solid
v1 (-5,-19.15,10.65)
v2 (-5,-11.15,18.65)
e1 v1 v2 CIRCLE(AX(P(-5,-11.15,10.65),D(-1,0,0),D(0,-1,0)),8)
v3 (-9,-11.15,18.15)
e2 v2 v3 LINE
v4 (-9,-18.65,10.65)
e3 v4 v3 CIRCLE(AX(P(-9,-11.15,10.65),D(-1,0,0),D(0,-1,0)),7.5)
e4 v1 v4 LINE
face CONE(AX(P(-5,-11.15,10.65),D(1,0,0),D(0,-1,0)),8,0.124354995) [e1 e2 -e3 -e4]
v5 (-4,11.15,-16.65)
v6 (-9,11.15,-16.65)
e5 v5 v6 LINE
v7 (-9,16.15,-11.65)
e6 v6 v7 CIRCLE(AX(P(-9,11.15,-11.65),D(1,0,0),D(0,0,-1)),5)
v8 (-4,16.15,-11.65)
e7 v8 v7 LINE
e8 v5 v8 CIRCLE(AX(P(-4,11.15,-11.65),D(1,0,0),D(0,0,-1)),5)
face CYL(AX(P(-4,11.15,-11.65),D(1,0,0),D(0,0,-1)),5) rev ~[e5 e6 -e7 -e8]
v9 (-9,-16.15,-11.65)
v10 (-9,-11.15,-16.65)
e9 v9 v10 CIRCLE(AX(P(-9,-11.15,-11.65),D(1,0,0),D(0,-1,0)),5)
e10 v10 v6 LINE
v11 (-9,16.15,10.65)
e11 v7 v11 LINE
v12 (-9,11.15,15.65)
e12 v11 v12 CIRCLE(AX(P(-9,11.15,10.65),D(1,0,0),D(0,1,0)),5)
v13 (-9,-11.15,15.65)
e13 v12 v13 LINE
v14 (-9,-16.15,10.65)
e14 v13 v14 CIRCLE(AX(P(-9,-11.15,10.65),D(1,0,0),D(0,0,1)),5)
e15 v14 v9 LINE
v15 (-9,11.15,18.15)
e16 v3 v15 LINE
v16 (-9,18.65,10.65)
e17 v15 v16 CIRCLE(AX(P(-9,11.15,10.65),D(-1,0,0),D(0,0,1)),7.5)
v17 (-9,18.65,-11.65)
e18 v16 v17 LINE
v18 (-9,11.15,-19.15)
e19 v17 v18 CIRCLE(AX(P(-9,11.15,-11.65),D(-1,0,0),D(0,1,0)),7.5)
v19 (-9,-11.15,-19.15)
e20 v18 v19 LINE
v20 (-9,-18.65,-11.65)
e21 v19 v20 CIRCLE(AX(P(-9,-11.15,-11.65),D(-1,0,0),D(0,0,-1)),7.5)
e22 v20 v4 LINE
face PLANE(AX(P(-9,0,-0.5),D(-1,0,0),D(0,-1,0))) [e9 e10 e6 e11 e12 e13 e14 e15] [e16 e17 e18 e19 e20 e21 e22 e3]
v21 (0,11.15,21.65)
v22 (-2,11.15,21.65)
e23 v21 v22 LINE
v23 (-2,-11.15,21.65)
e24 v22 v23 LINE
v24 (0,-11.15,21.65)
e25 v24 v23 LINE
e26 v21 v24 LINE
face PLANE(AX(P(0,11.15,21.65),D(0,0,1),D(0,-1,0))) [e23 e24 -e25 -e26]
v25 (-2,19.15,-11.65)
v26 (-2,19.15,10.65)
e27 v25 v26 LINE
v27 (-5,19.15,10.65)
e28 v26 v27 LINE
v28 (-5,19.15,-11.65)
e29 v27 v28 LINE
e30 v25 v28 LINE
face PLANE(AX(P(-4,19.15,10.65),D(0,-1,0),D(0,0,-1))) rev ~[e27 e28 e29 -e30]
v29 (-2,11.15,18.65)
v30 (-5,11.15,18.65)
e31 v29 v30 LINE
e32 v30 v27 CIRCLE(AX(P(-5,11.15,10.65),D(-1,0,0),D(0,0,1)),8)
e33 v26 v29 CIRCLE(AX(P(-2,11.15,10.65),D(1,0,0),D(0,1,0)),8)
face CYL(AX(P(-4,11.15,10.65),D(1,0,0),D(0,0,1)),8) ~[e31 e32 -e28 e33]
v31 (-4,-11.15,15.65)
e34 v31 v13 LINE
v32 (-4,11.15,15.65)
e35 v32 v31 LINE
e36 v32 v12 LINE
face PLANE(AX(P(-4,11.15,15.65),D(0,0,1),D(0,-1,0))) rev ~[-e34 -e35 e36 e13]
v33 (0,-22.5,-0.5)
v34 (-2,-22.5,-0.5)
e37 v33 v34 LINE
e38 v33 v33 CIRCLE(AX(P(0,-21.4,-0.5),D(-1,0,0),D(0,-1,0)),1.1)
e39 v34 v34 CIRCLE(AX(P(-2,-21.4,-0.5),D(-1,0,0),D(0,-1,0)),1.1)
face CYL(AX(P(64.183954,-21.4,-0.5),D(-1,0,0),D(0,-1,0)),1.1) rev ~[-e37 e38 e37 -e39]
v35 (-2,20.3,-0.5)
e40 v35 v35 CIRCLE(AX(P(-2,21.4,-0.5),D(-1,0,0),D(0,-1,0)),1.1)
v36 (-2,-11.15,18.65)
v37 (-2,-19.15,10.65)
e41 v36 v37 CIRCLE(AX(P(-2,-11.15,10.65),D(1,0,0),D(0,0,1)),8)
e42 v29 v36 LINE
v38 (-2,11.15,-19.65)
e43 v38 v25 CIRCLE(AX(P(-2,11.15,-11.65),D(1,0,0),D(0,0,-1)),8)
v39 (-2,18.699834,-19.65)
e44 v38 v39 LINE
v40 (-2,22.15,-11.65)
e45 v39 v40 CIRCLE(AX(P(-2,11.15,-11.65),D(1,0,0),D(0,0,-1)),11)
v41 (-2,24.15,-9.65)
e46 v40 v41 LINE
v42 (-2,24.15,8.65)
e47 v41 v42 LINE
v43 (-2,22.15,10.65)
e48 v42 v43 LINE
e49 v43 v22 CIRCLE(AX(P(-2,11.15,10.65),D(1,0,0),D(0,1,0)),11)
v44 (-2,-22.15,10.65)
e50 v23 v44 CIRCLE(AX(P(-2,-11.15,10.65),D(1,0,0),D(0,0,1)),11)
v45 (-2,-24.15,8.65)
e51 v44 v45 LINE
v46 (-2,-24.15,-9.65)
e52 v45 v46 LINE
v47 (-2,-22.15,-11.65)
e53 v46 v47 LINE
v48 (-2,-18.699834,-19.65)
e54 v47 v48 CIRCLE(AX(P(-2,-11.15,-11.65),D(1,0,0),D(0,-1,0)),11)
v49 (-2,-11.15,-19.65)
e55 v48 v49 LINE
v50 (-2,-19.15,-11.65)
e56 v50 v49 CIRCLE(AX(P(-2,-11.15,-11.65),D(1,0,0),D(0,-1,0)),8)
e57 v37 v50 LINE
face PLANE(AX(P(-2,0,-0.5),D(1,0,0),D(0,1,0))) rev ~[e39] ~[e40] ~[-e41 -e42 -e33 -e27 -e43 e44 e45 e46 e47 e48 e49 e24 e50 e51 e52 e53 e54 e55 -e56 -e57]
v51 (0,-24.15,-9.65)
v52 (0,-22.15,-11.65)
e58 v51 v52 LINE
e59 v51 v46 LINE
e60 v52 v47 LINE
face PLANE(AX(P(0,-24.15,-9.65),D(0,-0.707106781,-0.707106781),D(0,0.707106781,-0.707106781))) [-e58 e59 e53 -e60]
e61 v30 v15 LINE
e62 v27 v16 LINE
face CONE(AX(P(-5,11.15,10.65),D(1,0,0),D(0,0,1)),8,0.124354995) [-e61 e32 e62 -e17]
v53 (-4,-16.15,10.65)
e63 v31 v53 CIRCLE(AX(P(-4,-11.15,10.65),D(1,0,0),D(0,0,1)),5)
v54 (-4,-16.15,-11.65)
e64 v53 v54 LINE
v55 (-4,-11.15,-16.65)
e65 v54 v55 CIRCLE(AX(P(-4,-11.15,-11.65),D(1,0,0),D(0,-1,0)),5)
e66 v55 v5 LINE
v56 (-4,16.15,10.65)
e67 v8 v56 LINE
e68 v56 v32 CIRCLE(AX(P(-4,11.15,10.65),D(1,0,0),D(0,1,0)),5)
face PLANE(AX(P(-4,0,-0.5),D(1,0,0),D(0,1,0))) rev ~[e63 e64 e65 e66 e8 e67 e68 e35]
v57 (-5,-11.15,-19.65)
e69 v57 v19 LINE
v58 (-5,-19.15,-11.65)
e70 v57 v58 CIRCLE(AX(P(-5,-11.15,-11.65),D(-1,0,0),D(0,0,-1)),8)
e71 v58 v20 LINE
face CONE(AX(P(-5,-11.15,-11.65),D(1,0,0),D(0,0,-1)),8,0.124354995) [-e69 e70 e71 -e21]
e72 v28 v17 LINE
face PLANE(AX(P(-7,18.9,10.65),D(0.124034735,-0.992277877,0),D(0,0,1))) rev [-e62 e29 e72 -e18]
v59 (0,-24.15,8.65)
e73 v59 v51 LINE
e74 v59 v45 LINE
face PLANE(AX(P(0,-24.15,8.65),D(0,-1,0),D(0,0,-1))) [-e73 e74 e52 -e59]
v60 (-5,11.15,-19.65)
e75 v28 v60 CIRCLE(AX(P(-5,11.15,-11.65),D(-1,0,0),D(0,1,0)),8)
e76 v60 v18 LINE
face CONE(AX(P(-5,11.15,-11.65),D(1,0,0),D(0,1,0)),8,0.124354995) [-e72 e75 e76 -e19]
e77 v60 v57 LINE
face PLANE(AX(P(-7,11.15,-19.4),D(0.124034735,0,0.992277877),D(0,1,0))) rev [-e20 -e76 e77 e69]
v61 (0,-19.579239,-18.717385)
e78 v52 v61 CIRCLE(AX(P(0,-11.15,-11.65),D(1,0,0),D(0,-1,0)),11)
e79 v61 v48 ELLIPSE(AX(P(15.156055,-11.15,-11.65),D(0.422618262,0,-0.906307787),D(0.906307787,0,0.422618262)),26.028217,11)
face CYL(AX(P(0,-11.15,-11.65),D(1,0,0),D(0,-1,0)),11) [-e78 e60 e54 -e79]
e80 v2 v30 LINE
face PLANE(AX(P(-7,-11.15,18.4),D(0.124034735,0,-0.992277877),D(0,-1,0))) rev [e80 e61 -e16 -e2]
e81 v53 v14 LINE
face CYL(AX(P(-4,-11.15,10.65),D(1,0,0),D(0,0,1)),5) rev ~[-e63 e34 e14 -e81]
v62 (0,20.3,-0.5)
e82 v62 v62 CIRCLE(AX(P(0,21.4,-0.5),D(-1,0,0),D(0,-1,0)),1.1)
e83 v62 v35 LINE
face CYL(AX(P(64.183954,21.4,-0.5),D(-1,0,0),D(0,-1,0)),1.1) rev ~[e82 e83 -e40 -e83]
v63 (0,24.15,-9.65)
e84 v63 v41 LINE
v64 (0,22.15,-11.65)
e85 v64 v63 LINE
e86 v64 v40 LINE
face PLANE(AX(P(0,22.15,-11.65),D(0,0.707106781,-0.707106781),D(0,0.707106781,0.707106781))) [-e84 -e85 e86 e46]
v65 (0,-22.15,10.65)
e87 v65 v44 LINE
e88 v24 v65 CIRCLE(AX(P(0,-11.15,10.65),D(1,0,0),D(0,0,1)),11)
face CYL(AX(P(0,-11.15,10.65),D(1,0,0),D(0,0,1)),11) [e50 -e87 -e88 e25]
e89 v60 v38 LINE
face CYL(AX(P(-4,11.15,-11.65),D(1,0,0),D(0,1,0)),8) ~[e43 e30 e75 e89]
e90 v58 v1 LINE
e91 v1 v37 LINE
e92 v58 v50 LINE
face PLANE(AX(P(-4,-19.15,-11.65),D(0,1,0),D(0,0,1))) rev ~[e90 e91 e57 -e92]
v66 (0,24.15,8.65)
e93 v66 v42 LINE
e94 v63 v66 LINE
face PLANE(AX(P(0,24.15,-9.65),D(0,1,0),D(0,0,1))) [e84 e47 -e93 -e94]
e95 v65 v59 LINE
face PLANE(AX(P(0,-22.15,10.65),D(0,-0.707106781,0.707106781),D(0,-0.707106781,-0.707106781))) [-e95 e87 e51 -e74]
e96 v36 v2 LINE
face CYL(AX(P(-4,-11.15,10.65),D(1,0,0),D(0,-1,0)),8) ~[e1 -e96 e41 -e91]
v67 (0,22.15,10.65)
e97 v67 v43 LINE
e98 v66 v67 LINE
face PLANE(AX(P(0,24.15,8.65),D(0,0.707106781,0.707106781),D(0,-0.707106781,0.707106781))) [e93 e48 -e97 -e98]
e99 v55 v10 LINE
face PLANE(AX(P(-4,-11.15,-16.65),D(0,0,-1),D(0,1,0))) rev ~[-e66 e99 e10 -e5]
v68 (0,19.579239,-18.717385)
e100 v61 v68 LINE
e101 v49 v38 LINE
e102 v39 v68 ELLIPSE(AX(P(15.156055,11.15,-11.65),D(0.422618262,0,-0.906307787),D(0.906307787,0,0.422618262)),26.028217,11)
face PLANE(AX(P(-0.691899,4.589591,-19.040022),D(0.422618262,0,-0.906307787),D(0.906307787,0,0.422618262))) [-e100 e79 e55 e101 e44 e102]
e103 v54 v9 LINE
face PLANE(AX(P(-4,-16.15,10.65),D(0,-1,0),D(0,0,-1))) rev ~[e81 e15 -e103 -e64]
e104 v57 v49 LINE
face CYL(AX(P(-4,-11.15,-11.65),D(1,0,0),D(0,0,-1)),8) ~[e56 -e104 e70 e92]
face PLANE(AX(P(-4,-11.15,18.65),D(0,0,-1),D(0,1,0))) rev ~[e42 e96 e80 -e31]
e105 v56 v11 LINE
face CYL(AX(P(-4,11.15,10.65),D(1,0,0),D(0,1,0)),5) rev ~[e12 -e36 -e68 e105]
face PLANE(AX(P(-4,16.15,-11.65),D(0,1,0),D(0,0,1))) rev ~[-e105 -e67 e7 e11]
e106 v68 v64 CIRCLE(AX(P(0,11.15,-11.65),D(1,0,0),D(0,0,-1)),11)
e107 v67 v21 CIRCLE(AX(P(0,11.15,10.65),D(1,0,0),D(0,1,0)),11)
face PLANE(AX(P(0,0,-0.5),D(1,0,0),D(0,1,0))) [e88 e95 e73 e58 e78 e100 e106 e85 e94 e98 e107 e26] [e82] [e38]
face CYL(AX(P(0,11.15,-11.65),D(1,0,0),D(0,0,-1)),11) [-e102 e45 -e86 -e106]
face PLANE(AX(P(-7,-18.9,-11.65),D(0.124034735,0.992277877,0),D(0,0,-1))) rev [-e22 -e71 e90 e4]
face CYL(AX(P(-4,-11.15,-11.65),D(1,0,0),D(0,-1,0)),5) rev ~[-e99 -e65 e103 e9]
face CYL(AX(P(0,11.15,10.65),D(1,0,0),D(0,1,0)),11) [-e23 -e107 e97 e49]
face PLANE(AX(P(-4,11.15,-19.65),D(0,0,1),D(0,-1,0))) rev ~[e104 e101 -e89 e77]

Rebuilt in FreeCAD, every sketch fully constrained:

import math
import FreeCAD as App
import Part
import Sketcher
from FreeCAD import Vector
Q = App.Units.Quantity


def edges_at(feature, points):
    """Names of the edges that pass closest to the given points."""
    edges = feature.Shape.Edges
    near = lambda p: min(range(len(edges)), key=lambda i: edges[i].distToShape(Part.Vertex(*p))[0])
    return sorted({f"Edge{near(p) + 1}" for p in points})


def add_polygon(sketch, points):
    """Adds a closed chain of lines whose ends are joined by coincident constraints."""
    first, n = sketch.GeometryCount, len(points)
    for a, b in zip(points, points[1:] + points[:1]):
        sketch.addGeometry(Part.LineSegment(App.Vector(*a, 0), App.Vector(*b, 0)), False)
    for i in range(n):
        sketch.addConstraint(Sketcher.Constraint("Coincident", first + i, 2, first + (i + 1) % n, 1))

doc = App.newDocument("Part")
params = doc.addObject("Spreadsheet::Sheet", "Params")
for row, (alias, value) in enumerate([
    ("sketch1_radius", "11 mm"),
    ("sketch1_width", "22.3 mm"),
    ("sketch1_height", "18.3 mm"),
    ("pad1_length", "2 mm"),
    ("sketch2_radius", "8 mm"),
    ("sketch2_width", "22.3 mm"),
    ("pad2_length", "4 mm"),
    ("sketch4_radius", "8 mm"),
    ("sketch4_radius2", "5 mm"),
    ("sketch4_width", "22.3 mm"),
    ("pad3_length", "5 mm"),
    ("chamfer_size", "4 mm"),
    ("chamfer_size2", "0.5 mm"),
    ("sketch5_diameter", "2.2 mm"),
    ("hole_diameter", "2.2 mm"),
], start=1):
    params.set(f"A{row}", alias)
    params.set(f"B{row}", "=" + value)
    params.setAlias(f"B{row}", alias)

body = doc.addObject("PartDesign::Body", "Body")

# Sketch on YZ plane
sketch1 = doc.addObject("Sketcher::SketchObject", "Sketch")
body.addObject(sketch1)
sketch1.AttachmentSupport = (doc.YZ_Plane, [""])
sketch1.MapMode = "FlatFace"
sketch1.addGeometry([
    Part.LineSegment(Vector(11.15, 21.65, 0), Vector(-11.15, 21.65, 0)),  # 0
    Part.ArcOfCircle(Part.Circle(Vector(-11.15, 10.65, 0), Vector(0, 0, 1), 11), math.radians(90), math.radians(180)),  # 1
    Part.LineSegment(Vector(-22.15, 10.65, 0), Vector(-24.15, 8.65, 0)),  # 2
    Part.LineSegment(Vector(-24.15, 8.65, 0), Vector(-24.15, -9.65, 0)),  # 3
    Part.LineSegment(Vector(-24.15, -9.65, 0), Vector(-22.15, -11.65, 0)),  # 4
    Part.ArcOfCircle(Part.Circle(Vector(-11.15, -11.65, 0), Vector(0, 0, 1), 11), math.radians(180), math.radians(270)),  # 5
    Part.LineSegment(Vector(-11.15, -22.65, 0), Vector(11.15, -22.65, 0)),  # 6
    Part.ArcOfCircle(Part.Circle(Vector(11.15, -11.65, 0), Vector(0, 0, 1), 11), math.radians(-90), math.radians(0)),  # 7
    Part.LineSegment(Vector(22.15, -11.65, 0), Vector(24.15, -9.65, 0)),  # 8
    Part.LineSegment(Vector(24.15, -9.65, 0), Vector(24.15, 8.65, 0)),  # 9
    Part.LineSegment(Vector(24.15, 8.65, 0), Vector(22.15, 10.65, 0)),  # 10
    Part.ArcOfCircle(Part.Circle(Vector(11.15, 10.65, 0), Vector(0, 0, 1), 11), math.radians(0), math.radians(90)),  # 11
], False)
sketch1.addConstraint([
    Sketcher.Constraint("Tangent", 0, 2, 1, 1),
    Sketcher.Constraint("Coincident", 1, 2, 2, 1),
    Sketcher.Constraint("Coincident", 2, 2, 3, 1),
    Sketcher.Constraint("Coincident", 3, 2, 4, 1),
    Sketcher.Constraint("Coincident", 4, 2, 5, 1),
    Sketcher.Constraint("Tangent", 5, 2, 6, 1),
    Sketcher.Constraint("Tangent", 6, 2, 7, 1),
    Sketcher.Constraint("Coincident", 7, 2, 8, 1),
    Sketcher.Constraint("Coincident", 8, 2, 9, 1),
    Sketcher.Constraint("Coincident", 9, 2, 10, 1),
    Sketcher.Constraint("Coincident", 10, 2, 11, 1),
    Sketcher.Constraint("Tangent", 11, 2, 0, 1),
    Sketcher.Constraint("Horizontal", 0),
    Sketcher.Constraint("Vertical", 3),
    Sketcher.Constraint("Horizontal", 6),
    Sketcher.Constraint("Vertical", 9),
    Sketcher.Constraint("Equal", 1, 5),
    Sketcher.Constraint("Equal", 5, 7),
    Sketcher.Constraint("Equal", 7, 11),
    Sketcher.Constraint("Symmetric", 4, 2, 7, 2, -2),
    Sketcher.Constraint("Symmetric", 3, 2, 8, 2, -2),
    Sketcher.Constraint("Symmetric", 1, 2, 10, 2, -2),
    Sketcher.Constraint("Perpendicular", 2, 4),
    Sketcher.Constraint("Perpendicular", 4, 8),
    Sketcher.Constraint("Perpendicular", 8, 10),
    Sketcher.Constraint("Horizontal", 11, 3, 1, 2),
    Sketcher.Constraint("Horizontal", 7, 3, 4, 2),
    Sketcher.Constraint("Vertical", 1, 3, 5, 3),
    Sketcher.Constraint("Radius", 1, Q("11 mm")),
    Sketcher.Constraint("DistanceX", 0, 2, 0, 1, Q("22.3 mm")),
    Sketcher.Constraint("DistanceY", 3, 2, 3, 1, Q("18.3 mm")),
    Sketcher.Constraint("DistanceX", 2, 2, 1, 2, Q("2 mm")),
    Sketcher.Constraint("DistanceY", -1, 1, 1, 3, Q("10.65 mm")),
])
sketch1.setExpression("Constraints[28]", "Params.sketch1_radius")
sketch1.setExpression("Constraints[29]", "Params.sketch1_width")
sketch1.setExpression("Constraints[30]", "Params.sketch1_height")
pad1 = doc.addObject("PartDesign::Pad", "Pad")
body.addObject(pad1)
pad1.Profile = sketch1
pad1.setExpression("Length", "Params.pad1_length")
pad1.Reversed = True

# Sketch on YZ plane
sketch2 = doc.addObject("Sketcher::SketchObject", "Sketch001")
body.addObject(sketch2)
sketch2.AttachmentSupport = (doc.YZ_Plane, [""])
sketch2.MapMode = "FlatFace"
sketch2.addGeometry([
    Part.LineSegment(Vector(11.15, 18.65, 0), Vector(-11.15, 18.65, 0)),  # 0
    Part.ArcOfCircle(Part.Circle(Vector(-11.15, 10.65, 0), Vector(0, 0, 1), 8), math.radians(90), math.radians(180)),  # 1
    Part.LineSegment(Vector(-19.15, 10.65, 0), Vector(-19.15, -11.65, 0)),  # 2
    Part.ArcOfCircle(Part.Circle(Vector(-11.15, -11.65, 0), Vector(0, 0, 1), 8), math.radians(180), math.radians(270)),  # 3
    Part.LineSegment(Vector(-11.15, -19.65, 0), Vector(11.15, -19.65, 0)),  # 4
    Part.ArcOfCircle(Part.Circle(Vector(11.15, -11.65, 0), Vector(0, 0, 1), 8), math.radians(-90), math.radians(0)),  # 5
    Part.LineSegment(Vector(19.15, -11.65, 0), Vector(19.15, 10.65, 0)),  # 6
    Part.ArcOfCircle(Part.Circle(Vector(11.15, 10.65, 0), Vector(0, 0, 1), 8), math.radians(0), math.radians(90)),  # 7
], False)
sketch2.addConstraint([
    Sketcher.Constraint("Tangent", 0, 2, 1, 1),
    Sketcher.Constraint("Tangent", 1, 2, 2, 1),
    Sketcher.Constraint("Tangent", 2, 2, 3, 1),
    Sketcher.Constraint("Tangent", 3, 2, 4, 1),
    Sketcher.Constraint("Tangent", 4, 2, 5, 1),
    Sketcher.Constraint("Tangent", 5, 2, 6, 1),
    Sketcher.Constraint("Tangent", 6, 2, 7, 1),
    Sketcher.Constraint("Tangent", 7, 2, 0, 1),
    Sketcher.Constraint("Horizontal", 0),
    Sketcher.Constraint("Vertical", 2),
    Sketcher.Constraint("Horizontal", 4),
    Sketcher.Constraint("Vertical", 6),
    Sketcher.Constraint("Equal", 1, 3),
    Sketcher.Constraint("Equal", 3, 5),
    Sketcher.Constraint("Equal", 5, 7),
    Sketcher.Constraint("Equal", 4, 2),
    Sketcher.Constraint("Radius", 1, Q("8 mm")),
    Sketcher.Constraint("DistanceX", 0, 2, 0, 1, Q("22.3 mm")),
    Sketcher.Constraint("DistanceX", 1, 3, -1, 1, Q("11.15 mm")),
    Sketcher.Constraint("DistanceY", -1, 1, 1, 3, Q("10.65 mm")),
])
sketch2.setExpression("Constraints[16]", "Params.sketch2_radius")
sketch2.setExpression("Constraints[17]", "Params.sketch2_width")
pad2 = doc.addObject("PartDesign::Pad", "Pad001")
body.addObject(pad2)
pad2.Profile = sketch2
pad2.setExpression("Length", "Params.pad2_length")
pad2.Reversed = True

# Sketch on an angled plane
sketch3 = doc.addObject("Sketcher::SketchObject", "Sketch002")
body.addObject(sketch3)
sketch3.Placement = App.Placement(Vector(7.169174, 0, -15.374344), App.Rotation(Vector(0.906307787, 0, 0.422618262), Vector(0, -1, 0), Vector(0.422618262, 0, -0.906307787), "ZXY"))
add_polygon(sketch3, [(-20.451872, 27.175099), (-20.451872, -36.354281), (3.104403, -36.354281), (3.104403, 27.175099)])  # lines 0-3
sketch3.addConstraint([
    Sketcher.Constraint("Vertical", 0),
    Sketcher.Constraint("Horizontal", 1),
    Sketcher.Constraint("Vertical", 2),
    Sketcher.Constraint("Horizontal", 3),
    Sketcher.Constraint("DistanceY", 0, 2, 0, 1, Q("63.52938 mm")),
    Sketcher.Constraint("DistanceY", -1, 1, 2, 2, Q("27.175099 mm")),
    Sketcher.Constraint("DistanceX", 1, 1, 1, 2, Q("23.556275 mm")),
    Sketcher.Constraint("DistanceX", 0, 2, -1, 1, Q("20.451872 mm")),
])
pocket1 = doc.addObject("PartDesign::Pocket", "Pocket")
body.addObject(pocket1)
pocket1.Profile = sketch3
pocket1.Type = "ThroughAll"
pocket1.Reversed = True

# Sketch on YZ plane
sketch4 = doc.addObject("Sketcher::SketchObject", "Sketch003")
body.addObject(sketch4)
sketch4.AttachmentSupport = (doc.YZ_Plane, [""])
sketch4.MapMode = "FlatFace"
sketch4.AttachmentOffset = App.Placement(Vector(0, 0, -4), App.Rotation())
sketch4.addGeometry([
    Part.ArcOfCircle(Part.Circle(Vector(-11.15, 10.65, 0), Vector(0, 0, 1), 8), math.radians(90), math.radians(180)),  # 0
    Part.LineSegment(Vector(-11.15, 18.65, 0), Vector(11.15, 18.65, 0)),  # 1
    Part.ArcOfCircle(Part.Circle(Vector(11.15, 10.65, 0), Vector(0, 0, 1), 8), math.radians(0), math.radians(90)),  # 2
    Part.LineSegment(Vector(19.15, 10.65, 0), Vector(19.15, -11.65, 0)),  # 3
    Part.ArcOfCircle(Part.Circle(Vector(11.15, -11.65, 0), Vector(0, 0, 1), 8), math.radians(-90), math.radians(0)),  # 4
    Part.LineSegment(Vector(11.15, -19.65, 0), Vector(-11.15, -19.65, 0)),  # 5
    Part.ArcOfCircle(Part.Circle(Vector(-11.15, -11.65, 0), Vector(0, 0, 1), 8), math.radians(180), math.radians(270)),  # 6
    Part.LineSegment(Vector(-19.15, -11.65, 0), Vector(-19.15, 10.65, 0)),  # 7
    Part.LineSegment(Vector(11.15, 15.65, 0), Vector(-11.15, 15.65, 0)),  # 8
    Part.ArcOfCircle(Part.Circle(Vector(-11.15, 10.65, 0), Vector(0, 0, 1), 5), math.radians(90), math.radians(180)),  # 9
    Part.LineSegment(Vector(-16.15, 10.65, 0), Vector(-16.15, -11.65, 0)),  # 10
    Part.ArcOfCircle(Part.Circle(Vector(-11.15, -11.65, 0), Vector(0, 0, 1), 5), math.radians(180), math.radians(270)),  # 11
    Part.LineSegment(Vector(-11.15, -16.65, 0), Vector(11.15, -16.65, 0)),  # 12
    Part.ArcOfCircle(Part.Circle(Vector(11.15, -11.65, 0), Vector(0, 0, 1), 5), math.radians(-90), math.radians(0)),  # 13
    Part.LineSegment(Vector(16.15, -11.65, 0), Vector(16.15, 10.65, 0)),  # 14
    Part.ArcOfCircle(Part.Circle(Vector(11.15, 10.65, 0), Vector(0, 0, 1), 5), math.radians(0), math.radians(90)),  # 15
], False)
sketch4.addConstraint([
    Sketcher.Constraint("Tangent", 0, 1, 1, 1),
    Sketcher.Constraint("Tangent", 1, 2, 2, 2),
    Sketcher.Constraint("Tangent", 2, 1, 3, 1),
    Sketcher.Constraint("Tangent", 3, 2, 4, 2),
    Sketcher.Constraint("Tangent", 4, 1, 5, 1),
    Sketcher.Constraint("Tangent", 5, 2, 6, 2),
    Sketcher.Constraint("Tangent", 6, 1, 7, 1),
    Sketcher.Constraint("Tangent", 7, 2, 0, 2),
    Sketcher.Constraint("Tangent", 8, 2, 9, 1),
    Sketcher.Constraint("Tangent", 9, 2, 10, 1),
    Sketcher.Constraint("Tangent", 10, 2, 11, 1),
    Sketcher.Constraint("Tangent", 11, 2, 12, 1),
    Sketcher.Constraint("Tangent", 12, 2, 13, 1),
    Sketcher.Constraint("Tangent", 13, 2, 14, 1),
    Sketcher.Constraint("Tangent", 14, 2, 15, 1),
    Sketcher.Constraint("Tangent", 15, 2, 8, 1),
    Sketcher.Constraint("Horizontal", 1),
    Sketcher.Constraint("Vertical", 3),
    Sketcher.Constraint("Horizontal", 5),
    Sketcher.Constraint("Vertical", 7),
    Sketcher.Constraint("Horizontal", 8),
    Sketcher.Constraint("Vertical", 10),
    Sketcher.Constraint("Horizontal", 12),
    Sketcher.Constraint("Vertical", 14),
    Sketcher.Constraint("Coincident", 9, 3, 0, 3),
    Sketcher.Constraint("Coincident", 11, 3, 6, 3),
    Sketcher.Constraint("Coincident", 13, 3, 4, 3),
    Sketcher.Constraint("Equal", 0, 2),
    Sketcher.Constraint("Equal", 2, 4),
    Sketcher.Constraint("Equal", 4, 6),
    Sketcher.Constraint("Equal", 13, 15),
    Sketcher.Constraint("Equal", 12, 3),
    Sketcher.Constraint("Radius", 0, Q("8 mm")),
    Sketcher.Constraint("Radius", 9, Q("5 mm")),
    Sketcher.Constraint("DistanceX", 1, 1, 1, 2, Q("22.3 mm")),
    Sketcher.Constraint("DistanceX", 0, 3, -1, 1, Q("11.15 mm")),
    Sketcher.Constraint("DistanceY", -1, 1, 0, 3, Q("10.65 mm")),
])
sketch4.setExpression("Constraints[32]", "Params.sketch4_radius")
sketch4.setExpression("Constraints[33]", "Params.sketch4_radius2")
sketch4.setExpression("Constraints[34]", "Params.sketch4_width")
pad3 = doc.addObject("PartDesign::Pad", "Pad002")
body.addObject(pad3)
pad3.Profile = sketch4
pad3.setExpression("Length", "Params.pad3_length")
pad3.Reversed = True
doc.recompute()

chamfer = doc.addObject("PartDesign::Chamfer", "Chamfer")
body.addObject(chamfer)
chamfer.Base = (pad3, edges_at(pad3, [(-9, -16.807, -17.307), (-9, 0, -19.65), (-9, -19.15, -0.5)]))
chamfer.ChamferType = "Two distances"
chamfer.setExpression("Size", "Params.chamfer_size")
chamfer.setExpression("Size2", "Params.chamfer_size2")
chamfer.FlipDirection = True

# Sketch on YZ plane
sketch5 = doc.addObject("Sketcher::SketchObject", "Sketch004")
body.addObject(sketch5)
sketch5.AttachmentSupport = (doc.YZ_Plane, [""])
sketch5.MapMode = "FlatFace"
sketch5.addGeometry([
    Part.Circle(Vector(-21.4, -0.5, 0), Vector(0, 0, 1), 1.1),
    Part.Circle(Vector(21.4, -0.5, 0), Vector(0, 0, 1), 1.1),
], False)
sketch5.addConstraint([
    Sketcher.Constraint("Equal", 0, 1),
    Sketcher.Constraint("Symmetric", 0, 3, 1, 3, -2),
    Sketcher.Constraint("Diameter", 0, Q("2.2 mm")),
    Sketcher.Constraint("DistanceX", 0, 3, -1, 1, Q("21.4 mm")),
    Sketcher.Constraint("DistanceY", 0, 3, -1, 1, Q("0.5 mm")),
])
sketch5.setExpression("Constraints[2]", "Params.sketch5_diameter")
doc.recompute()
hole = doc.addObject("PartDesign::Hole", "Hole")
body.addObject(hole)
hole.Profile = sketch5
hole.ThreadType = "None"
hole.setExpression("Diameter", "Params.hole_diameter")
hole.DepthType = "ThroughAll"

doc.recompute()
